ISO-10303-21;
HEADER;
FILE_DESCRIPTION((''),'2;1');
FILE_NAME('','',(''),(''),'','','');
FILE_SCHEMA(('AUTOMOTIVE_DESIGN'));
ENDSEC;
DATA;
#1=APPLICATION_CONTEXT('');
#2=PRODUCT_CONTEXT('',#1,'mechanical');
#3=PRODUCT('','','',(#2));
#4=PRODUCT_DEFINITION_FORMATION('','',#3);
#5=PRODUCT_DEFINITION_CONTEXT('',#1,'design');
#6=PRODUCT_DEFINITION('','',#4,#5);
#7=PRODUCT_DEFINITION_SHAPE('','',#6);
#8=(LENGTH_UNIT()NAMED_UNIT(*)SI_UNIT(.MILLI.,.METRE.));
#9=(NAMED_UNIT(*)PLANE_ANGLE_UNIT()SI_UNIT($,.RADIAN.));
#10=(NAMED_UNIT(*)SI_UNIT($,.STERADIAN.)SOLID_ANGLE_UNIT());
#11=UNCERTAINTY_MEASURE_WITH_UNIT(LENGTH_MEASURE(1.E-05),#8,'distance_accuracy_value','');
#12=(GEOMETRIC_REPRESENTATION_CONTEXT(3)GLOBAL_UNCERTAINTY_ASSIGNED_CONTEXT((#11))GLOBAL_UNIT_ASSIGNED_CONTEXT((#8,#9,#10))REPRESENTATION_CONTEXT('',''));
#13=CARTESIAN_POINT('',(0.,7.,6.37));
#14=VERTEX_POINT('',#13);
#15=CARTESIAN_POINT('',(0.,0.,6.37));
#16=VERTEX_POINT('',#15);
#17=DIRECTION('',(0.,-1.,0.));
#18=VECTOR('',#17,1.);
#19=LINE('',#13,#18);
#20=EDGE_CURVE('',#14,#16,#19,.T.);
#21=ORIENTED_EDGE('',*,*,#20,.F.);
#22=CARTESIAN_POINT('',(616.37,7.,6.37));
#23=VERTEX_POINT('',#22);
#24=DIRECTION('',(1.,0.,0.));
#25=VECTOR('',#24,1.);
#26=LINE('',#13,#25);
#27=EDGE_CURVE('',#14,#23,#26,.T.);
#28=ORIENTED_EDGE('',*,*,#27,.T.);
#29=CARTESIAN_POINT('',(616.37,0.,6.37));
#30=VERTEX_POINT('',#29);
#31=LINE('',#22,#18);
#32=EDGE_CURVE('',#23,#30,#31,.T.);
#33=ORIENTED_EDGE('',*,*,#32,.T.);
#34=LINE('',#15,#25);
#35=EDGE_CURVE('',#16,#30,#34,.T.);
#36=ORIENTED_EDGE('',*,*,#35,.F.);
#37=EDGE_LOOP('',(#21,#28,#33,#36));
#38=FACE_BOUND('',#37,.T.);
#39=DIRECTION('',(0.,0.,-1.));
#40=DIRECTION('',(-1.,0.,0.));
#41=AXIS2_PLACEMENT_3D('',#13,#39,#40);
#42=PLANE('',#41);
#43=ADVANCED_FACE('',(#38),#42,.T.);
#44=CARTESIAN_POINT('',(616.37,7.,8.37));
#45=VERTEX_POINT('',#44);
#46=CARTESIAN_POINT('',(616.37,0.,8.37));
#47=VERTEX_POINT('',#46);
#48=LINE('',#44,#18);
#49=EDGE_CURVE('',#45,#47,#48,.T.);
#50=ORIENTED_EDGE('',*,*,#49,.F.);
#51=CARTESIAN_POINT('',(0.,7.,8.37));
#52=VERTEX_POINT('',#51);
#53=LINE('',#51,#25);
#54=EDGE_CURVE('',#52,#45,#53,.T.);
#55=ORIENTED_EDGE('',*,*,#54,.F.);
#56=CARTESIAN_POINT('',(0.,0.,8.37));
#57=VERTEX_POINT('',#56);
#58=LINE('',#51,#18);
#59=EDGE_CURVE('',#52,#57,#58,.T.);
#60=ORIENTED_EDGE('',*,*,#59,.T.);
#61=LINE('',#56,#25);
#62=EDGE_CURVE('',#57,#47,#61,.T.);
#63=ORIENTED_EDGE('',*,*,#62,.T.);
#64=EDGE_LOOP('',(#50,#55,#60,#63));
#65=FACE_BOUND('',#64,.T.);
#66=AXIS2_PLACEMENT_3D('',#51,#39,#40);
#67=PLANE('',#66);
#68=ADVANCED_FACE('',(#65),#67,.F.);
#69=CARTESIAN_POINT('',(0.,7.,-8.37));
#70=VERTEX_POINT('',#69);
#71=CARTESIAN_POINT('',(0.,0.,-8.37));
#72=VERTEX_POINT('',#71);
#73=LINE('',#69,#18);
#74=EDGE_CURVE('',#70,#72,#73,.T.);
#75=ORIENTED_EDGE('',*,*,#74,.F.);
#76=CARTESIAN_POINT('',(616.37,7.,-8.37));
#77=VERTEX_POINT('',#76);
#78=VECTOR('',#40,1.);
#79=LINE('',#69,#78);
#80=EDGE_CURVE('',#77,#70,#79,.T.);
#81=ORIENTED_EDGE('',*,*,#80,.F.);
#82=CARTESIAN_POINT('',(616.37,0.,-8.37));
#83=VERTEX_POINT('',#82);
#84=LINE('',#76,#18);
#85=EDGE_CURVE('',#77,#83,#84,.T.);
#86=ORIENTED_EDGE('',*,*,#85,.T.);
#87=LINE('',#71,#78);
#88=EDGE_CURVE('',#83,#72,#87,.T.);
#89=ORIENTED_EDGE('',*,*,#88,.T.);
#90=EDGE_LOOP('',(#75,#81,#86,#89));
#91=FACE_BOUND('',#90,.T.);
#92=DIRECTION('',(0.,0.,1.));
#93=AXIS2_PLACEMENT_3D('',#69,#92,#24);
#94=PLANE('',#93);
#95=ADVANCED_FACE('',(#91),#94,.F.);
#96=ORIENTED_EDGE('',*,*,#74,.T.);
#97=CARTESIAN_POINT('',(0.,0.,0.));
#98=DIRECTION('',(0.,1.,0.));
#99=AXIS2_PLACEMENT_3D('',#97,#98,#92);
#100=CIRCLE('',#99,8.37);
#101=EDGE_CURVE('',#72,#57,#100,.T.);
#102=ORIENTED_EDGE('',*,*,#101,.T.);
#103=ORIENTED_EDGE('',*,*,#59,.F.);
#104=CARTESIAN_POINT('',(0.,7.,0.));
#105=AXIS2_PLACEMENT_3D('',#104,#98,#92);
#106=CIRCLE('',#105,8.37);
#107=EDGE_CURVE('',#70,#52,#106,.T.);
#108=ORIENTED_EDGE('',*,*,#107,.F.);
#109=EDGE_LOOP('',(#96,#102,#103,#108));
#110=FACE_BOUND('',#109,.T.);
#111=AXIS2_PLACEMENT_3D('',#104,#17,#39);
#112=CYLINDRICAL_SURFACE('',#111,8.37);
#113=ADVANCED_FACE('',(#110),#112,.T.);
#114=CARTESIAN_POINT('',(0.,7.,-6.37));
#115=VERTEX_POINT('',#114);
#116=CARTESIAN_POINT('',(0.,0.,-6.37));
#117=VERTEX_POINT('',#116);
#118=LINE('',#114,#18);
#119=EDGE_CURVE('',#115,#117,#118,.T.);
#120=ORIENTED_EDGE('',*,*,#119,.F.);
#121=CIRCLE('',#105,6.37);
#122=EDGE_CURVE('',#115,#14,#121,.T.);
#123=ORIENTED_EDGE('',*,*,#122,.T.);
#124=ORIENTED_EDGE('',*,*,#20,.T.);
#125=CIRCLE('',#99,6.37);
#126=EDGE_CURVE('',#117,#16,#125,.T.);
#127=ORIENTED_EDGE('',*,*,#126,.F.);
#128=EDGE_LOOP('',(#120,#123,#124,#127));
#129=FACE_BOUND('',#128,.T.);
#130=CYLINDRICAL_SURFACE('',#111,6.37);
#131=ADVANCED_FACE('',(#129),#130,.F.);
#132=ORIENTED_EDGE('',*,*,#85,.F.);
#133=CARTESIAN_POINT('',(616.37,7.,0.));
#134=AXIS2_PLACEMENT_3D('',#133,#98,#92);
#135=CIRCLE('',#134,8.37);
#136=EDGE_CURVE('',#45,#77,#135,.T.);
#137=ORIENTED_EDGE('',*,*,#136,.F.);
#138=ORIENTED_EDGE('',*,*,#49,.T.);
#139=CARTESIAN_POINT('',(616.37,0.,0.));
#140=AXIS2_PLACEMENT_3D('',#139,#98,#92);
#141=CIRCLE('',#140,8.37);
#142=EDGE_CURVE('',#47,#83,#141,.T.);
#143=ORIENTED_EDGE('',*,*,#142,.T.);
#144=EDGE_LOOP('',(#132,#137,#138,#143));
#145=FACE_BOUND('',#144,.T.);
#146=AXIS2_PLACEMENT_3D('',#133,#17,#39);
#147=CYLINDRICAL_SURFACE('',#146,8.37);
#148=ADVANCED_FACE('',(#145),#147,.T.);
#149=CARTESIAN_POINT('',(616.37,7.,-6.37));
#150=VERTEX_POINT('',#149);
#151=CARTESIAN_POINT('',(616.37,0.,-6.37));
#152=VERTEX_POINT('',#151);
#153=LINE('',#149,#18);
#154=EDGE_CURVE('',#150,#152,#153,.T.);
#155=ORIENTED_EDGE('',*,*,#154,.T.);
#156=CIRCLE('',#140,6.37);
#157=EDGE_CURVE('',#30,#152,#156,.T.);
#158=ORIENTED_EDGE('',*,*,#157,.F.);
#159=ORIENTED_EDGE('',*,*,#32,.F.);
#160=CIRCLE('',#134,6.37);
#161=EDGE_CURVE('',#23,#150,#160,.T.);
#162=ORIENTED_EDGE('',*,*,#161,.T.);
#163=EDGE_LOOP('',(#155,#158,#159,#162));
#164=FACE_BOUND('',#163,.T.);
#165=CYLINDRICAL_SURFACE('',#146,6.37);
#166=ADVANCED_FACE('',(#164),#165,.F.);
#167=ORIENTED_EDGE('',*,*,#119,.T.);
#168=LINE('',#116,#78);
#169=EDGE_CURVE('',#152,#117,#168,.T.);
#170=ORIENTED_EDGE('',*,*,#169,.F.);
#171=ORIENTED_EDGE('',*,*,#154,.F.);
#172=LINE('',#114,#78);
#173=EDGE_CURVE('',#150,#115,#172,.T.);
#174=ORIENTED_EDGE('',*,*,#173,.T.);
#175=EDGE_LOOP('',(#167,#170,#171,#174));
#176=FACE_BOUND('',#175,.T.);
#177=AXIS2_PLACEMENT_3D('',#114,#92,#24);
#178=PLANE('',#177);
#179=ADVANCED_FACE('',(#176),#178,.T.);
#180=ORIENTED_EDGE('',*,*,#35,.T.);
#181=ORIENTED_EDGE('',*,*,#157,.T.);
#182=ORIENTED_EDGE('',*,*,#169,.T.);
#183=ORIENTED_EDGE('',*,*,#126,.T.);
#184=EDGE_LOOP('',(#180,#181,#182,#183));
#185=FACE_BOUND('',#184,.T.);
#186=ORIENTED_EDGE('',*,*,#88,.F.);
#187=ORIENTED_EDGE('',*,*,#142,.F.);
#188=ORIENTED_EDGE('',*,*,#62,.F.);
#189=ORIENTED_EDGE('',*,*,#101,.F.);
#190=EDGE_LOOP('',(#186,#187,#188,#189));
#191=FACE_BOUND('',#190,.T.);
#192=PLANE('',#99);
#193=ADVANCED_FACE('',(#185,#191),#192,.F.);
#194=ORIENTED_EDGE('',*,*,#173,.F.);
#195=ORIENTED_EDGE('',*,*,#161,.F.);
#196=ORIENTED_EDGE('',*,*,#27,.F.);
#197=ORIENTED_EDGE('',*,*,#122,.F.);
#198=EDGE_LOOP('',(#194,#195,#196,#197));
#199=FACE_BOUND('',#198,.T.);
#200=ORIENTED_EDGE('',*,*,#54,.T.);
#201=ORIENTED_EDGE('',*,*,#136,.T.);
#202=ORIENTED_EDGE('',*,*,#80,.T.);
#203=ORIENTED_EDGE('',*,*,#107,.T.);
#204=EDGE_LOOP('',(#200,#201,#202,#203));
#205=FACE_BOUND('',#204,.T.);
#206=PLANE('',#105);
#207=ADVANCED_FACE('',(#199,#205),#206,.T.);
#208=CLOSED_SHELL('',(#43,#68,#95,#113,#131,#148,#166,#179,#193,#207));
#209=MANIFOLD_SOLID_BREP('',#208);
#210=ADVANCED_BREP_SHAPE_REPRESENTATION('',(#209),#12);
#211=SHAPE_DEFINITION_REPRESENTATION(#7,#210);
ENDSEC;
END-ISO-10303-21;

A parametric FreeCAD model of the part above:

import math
import FreeCAD as App
import Part
import Sketcher

V = App.Vector

doc = App.newDocument("Part")
params = doc.addObject("Spreadsheet::Sheet", "Params")
for row, (alias, value) in enumerate([
    ("sketch1_radius", "8.37 mm"),
    ("sketch1_radius2", "6.37 mm"),
    ("sketch1_width", "616.37 mm"),
    ("pad1_length", "7 mm"),
], start=1):
    params.set(f"A{row}", alias)
    params.set(f"B{row}", "=" + value)
    params.setAlias(f"B{row}", alias)

body = doc.addObject("PartDesign::Body", "Body")

# Sketch on XZ plane
sketch1 = doc.addObject("Sketcher::SketchObject", "Sketch")
body.addObject(sketch1)
sketch1.AttachmentSupport = (doc.XZ_Plane, [""])
sketch1.MapMode = "FlatFace"
sketch1.addGeometry([
    Part.LineSegment(V(616.37, -8.37, 0), V(0, -8.37, 0)),  # 0
    Part.ArcOfCircle(Part.Circle(V(0, 0, 0), V(0, 0, 1), 8.37), math.radians(90), math.radians(270)),  # 1
    Part.LineSegment(V(0, 8.37, 0), V(616.37, 8.37, 0)),  # 2
    Part.ArcOfCircle(Part.Circle(V(616.37, 0, 0), V(0, 0, 1), 8.37), math.radians(-90), math.radians(90)),  # 3
    Part.LineSegment(V(0, -6.37, 0), V(616.37, -6.37, 0)),  # 4
    Part.ArcOfCircle(Part.Circle(V(616.37, 0, 0), V(0, 0, 1), 6.37), math.radians(-90), math.radians(90)),  # 5
    Part.LineSegment(V(616.37, 6.37, 0), V(0, 6.37, 0)),  # 6
    Part.ArcOfCircle(Part.Circle(V(0, 0, 0), V(0, 0, 1), 6.37), math.radians(90), math.radians(270)),  # 7
], False)
sketch1.addConstraint([
    Sketcher.Constraint("Tangent", 0, 2, 1, 2),
    Sketcher.Constraint("Tangent", 1, 1, 2, 1),
    Sketcher.Constraint("Tangent", 2, 2, 3, 2),
    Sketcher.Constraint("Tangent", 3, 1, 0, 1),
    Sketcher.Constraint("Tangent", 4, 2, 5, 1),
    Sketcher.Constraint("Tangent", 5, 2, 6, 1),
    Sketcher.Constraint("Tangent", 6, 2, 7, 1),
    Sketcher.Constraint("Tangent", 7, 2, 4, 1),
    Sketcher.Constraint("Horizontal", 0),
    Sketcher.Constraint("Horizontal", 2),
    Sketcher.Constraint("Horizontal", 4),
    Sketcher.Constraint("Horizontal", 6),
    Sketcher.Constraint("Coincident", 1, 3, -1, 1),
    Sketcher.Constraint("Coincident", 7, 3, -1, 1),
    Sketcher.Constraint("Vertical", 5, 3, 2, 2),
    Sketcher.Constraint("Radius", 1, 8.37),
    Sketcher.Constraint("Radius", 5, 6.37),
    Sketcher.Constraint("DistanceX", 0, 2, 0, 1, 616.37),
])
sketch1.setExpression("Constraints[15]", "Params.sketch1_radius")
sketch1.setExpression("Constraints[16]", "Params.sketch1_radius2")
sketch1.setExpression("Constraints[17]", "Params.sketch1_width")
pad1 = doc.addObject("PartDesign::Pad", "Pad")
body.addObject(pad1)
pad1.Profile = sketch1
pad1.setExpression("Length", "Params.pad1_length")
pad1.Reversed = True

doc.recompute()
